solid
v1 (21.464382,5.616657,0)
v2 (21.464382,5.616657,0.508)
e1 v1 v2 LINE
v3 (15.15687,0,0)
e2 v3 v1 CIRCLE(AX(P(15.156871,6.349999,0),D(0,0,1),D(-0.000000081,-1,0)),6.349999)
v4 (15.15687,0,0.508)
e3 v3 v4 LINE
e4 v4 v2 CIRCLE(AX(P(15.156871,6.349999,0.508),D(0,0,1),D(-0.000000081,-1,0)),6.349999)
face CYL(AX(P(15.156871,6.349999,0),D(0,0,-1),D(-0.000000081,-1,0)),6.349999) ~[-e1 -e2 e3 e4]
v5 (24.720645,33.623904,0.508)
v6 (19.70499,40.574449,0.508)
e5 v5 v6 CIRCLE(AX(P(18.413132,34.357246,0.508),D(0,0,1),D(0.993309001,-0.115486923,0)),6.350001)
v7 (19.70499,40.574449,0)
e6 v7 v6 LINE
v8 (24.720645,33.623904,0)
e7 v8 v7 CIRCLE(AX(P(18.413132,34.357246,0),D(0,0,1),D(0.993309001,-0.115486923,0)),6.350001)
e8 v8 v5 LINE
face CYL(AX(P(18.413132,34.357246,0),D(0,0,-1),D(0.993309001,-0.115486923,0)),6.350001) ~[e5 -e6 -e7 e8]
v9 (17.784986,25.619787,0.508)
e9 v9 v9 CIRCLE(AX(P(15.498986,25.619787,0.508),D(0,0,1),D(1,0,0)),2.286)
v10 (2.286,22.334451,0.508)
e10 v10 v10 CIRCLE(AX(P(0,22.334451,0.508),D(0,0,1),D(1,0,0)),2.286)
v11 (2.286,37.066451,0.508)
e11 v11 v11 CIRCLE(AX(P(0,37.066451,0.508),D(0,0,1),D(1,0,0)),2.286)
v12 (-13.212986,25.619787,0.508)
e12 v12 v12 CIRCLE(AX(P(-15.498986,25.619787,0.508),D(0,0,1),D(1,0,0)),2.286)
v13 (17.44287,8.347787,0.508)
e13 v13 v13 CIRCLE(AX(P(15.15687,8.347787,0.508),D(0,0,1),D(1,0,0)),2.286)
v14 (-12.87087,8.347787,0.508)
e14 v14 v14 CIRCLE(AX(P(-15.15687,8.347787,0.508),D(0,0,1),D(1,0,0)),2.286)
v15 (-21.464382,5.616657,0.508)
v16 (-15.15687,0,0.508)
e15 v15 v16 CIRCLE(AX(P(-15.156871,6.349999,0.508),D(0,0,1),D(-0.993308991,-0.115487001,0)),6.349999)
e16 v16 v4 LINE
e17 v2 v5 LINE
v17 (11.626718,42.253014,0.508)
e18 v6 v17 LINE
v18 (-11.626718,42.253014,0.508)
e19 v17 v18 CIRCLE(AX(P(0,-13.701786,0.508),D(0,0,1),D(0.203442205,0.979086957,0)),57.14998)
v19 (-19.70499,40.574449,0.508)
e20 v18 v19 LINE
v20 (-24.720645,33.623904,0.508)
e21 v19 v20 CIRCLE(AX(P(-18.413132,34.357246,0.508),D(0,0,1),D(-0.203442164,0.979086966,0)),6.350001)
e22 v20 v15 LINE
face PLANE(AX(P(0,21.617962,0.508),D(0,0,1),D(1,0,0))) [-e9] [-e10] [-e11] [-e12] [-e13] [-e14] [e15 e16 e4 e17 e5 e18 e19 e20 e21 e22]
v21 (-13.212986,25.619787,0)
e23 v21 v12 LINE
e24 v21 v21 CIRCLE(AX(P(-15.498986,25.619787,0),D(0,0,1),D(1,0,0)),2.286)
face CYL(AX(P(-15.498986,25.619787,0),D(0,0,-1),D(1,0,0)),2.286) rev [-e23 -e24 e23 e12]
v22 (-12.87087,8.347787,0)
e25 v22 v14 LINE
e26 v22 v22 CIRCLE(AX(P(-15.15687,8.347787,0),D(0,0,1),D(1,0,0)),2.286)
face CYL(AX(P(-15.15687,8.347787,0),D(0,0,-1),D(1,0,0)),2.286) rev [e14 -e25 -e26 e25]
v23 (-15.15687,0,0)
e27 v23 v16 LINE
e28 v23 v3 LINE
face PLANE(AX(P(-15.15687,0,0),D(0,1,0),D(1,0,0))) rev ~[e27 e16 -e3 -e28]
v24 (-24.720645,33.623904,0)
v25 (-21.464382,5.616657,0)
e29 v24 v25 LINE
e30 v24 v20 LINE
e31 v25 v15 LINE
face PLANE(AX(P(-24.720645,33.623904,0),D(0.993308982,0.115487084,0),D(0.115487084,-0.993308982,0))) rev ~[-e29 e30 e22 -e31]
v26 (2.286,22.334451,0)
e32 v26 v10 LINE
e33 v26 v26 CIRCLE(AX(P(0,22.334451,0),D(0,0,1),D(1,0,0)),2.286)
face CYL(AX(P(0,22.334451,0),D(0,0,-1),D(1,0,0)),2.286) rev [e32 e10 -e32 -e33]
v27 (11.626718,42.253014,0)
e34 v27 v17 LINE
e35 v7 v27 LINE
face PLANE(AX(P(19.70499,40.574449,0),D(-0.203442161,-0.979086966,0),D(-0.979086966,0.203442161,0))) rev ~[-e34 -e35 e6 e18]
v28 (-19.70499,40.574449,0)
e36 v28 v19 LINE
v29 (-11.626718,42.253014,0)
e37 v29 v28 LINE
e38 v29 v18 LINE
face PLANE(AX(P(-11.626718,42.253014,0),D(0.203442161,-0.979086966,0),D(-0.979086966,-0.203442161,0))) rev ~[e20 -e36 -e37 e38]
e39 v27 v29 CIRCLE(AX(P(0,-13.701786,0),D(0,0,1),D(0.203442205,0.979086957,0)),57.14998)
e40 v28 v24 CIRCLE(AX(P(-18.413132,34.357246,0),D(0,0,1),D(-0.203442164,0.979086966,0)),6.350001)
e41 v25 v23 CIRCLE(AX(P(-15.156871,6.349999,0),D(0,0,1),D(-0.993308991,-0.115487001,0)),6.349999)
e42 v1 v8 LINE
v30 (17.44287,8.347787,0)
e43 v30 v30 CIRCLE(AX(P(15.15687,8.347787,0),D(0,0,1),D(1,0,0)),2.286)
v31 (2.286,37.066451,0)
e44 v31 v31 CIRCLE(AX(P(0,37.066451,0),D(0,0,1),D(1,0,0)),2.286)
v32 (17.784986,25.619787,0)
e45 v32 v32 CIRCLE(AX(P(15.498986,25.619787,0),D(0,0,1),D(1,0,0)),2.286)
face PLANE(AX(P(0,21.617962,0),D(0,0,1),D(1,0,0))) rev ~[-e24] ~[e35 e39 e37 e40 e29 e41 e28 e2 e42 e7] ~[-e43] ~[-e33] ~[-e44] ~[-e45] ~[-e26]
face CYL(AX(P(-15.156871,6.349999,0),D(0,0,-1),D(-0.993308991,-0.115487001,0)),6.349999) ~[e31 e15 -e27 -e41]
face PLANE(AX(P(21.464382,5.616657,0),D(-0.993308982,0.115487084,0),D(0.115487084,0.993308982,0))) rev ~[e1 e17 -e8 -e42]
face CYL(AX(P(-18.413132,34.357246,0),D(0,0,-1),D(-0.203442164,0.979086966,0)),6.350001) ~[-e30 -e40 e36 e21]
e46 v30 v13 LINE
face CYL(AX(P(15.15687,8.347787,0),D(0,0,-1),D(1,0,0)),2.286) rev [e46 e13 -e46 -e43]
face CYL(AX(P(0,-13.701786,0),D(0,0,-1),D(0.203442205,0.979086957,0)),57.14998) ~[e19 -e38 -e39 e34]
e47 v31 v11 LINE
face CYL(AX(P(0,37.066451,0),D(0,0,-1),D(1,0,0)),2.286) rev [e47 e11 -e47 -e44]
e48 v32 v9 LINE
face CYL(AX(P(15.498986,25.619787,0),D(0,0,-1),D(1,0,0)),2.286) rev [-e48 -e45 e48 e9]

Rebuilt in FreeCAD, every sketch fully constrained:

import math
import FreeCAD as App
import Part
import Sketcher
Q = App.Units.Quantity

doc = App.newDocument("Part")
body = doc.addObject("PartDesign::Body", "Body")

# Sketch on XY plane
sketch1 = doc.addObject("Sketcher::SketchObject", "Sketch")
body.addObject(sketch1)
sketch1.AttachmentSupport = (doc.XY_Plane, [""])
sketch1.MapMode = "FlatFace"
sketch1.addGeometry([
    Part.LineSegment(App.Vector(-15.2, 0, 0), App.Vector(15.2, 0, 0)),  # 0
    Part.ArcOfCircle(Part.Circle(App.Vector(15.2, 6.3, 0), App.Vector(0, 0, 1), 6.3), math.radians(-90), math.radians(-7)),  # 1
    Part.LineSegment(App.Vector(21.5, 5.6, 0), App.Vector(24.7, 33.6, 0)),  # 2
    Part.ArcOfCircle(Part.Circle(App.Vector(18.4, 34.4, 0), App.Vector(0, 0, 1), 6.4), math.radians(-7), math.radians(78)),  # 3
    Part.LineSegment(App.Vector(19.7, 40.6, 0), App.Vector(11.6, 42.3, 0)),  # 4
    Part.ArcOfCircle(Part.Circle(App.Vector(0, -13.7, 0), App.Vector(0, 0, 1), 57.1), math.radians(78), math.radians(102)),  # 5
    Part.LineSegment(App.Vector(-11.6, 42.3, 0), App.Vector(-19.7, 40.6, 0)),  # 6
    Part.ArcOfCircle(Part.Circle(App.Vector(-18.4, 34.4, 0), App.Vector(0, 0, 1), 6.4), math.radians(102), math.radians(187)),  # 7
    Part.LineSegment(App.Vector(-24.7, 33.6, 0), App.Vector(-21.5, 5.6, 0)),  # 8
    Part.ArcOfCircle(Part.Circle(App.Vector(-15.2, 6.3, 0), App.Vector(0, 0, 1), 6.3), math.radians(-173), math.radians(-90)),  # 9
    Part.Circle(App.Vector(-15.2, 8.3, 0), App.Vector(0, 0, 1), 2.3),  # 10
    Part.Circle(App.Vector(15.2, 8.3, 0), App.Vector(0, 0, 1), 2.3),  # 11
    Part.Circle(App.Vector(0, 22.3, 0), App.Vector(0, 0, 1), 2.3),  # 12
    Part.Circle(App.Vector(-15.5, 25.6, 0), App.Vector(0, 0, 1), 2.3),  # 13
    Part.Circle(App.Vector(15.5, 25.6, 0), App.Vector(0, 0, 1), 2.3),  # 14
    Part.Circle(App.Vector(0, 37.1, 0), App.Vector(0, 0, 1), 2.3),  # 15
], False)
sketch1.addConstraint([
    Sketcher.Constraint("Tangent", 0, 2, 1, 1),
    Sketcher.Constraint("Tangent", 1, 2, 2, 1),
    Sketcher.Constraint("Tangent", 2, 2, 3, 1),
    Sketcher.Constraint("Tangent", 3, 2, 4, 1),
    Sketcher.Constraint("Tangent", 4, 2, 5, 1),
    Sketcher.Constraint("Tangent", 5, 2, 6, 1),
    Sketcher.Constraint("Tangent", 6, 2, 7, 1),
    Sketcher.Constraint("Tangent", 7, 2, 8, 1),
    Sketcher.Constraint("Tangent", 8, 2, 9, 1),
    Sketcher.Constraint("Tangent", 9, 2, 0, 1),
    Sketcher.Constraint("Horizontal", 0),
    Sketcher.Constraint("Equal", 1, 3),
    Sketcher.Constraint("Equal", 3, 7),
    Sketcher.Constraint("Equal", 7, 9),
    Sketcher.Constraint("Equal", 10, 11),
    Sketcher.Constraint("Equal", 11, 12),
    Sketcher.Constraint("Equal", 12, 13),
    Sketcher.Constraint("Equal", 13, 14),
    Sketcher.Constraint("Equal", 14, 15),
    Sketcher.Constraint("Symmetric", 0, 2, 9, 2, -1, 1),
    Sketcher.Constraint("Symmetric", 3, 3, 7, 3, -2),
    Sketcher.Constraint("Symmetric", 10, 3, 11, 3, -2),
    Sketcher.Constraint("Symmetric", 13, 3, 14, 3, -2),
    Sketcher.Constraint("PointOnObject", 5, 3, -2),
    Sketcher.Constraint("PointOnObject", 12, 3, -2),
    Sketcher.Constraint("PointOnObject", 15, 3, -2),
    Sketcher.Constraint("Vertical", 9, 3, 10, 3),
    Sketcher.Constraint("Diameter", 10, Q("0.18 in")),
    Sketcher.Constraint("Radius", 1, Q("0.25 in")),
    Sketcher.Constraint("DistanceY", 10, 3, 13, 3, Q("0.68 in")),
    Sketcher.Constraint("DistanceY", 12, 3, 15, 3, Q("0.58 in")),
    Sketcher.Constraint("Radius", 5, 57.14998),
    Sketcher.Constraint("DistanceX", 0, 1, 0, 2, 30.31374),
    Sketcher.Constraint("DistanceY", 15, 3, 6, 2, 3.507998),
    Sketcher.Constraint("Distance", 4, 8.250822),
    Sketcher.Constraint("DistanceY", -1, 1, 12, 3, 22.334451),
    Sketcher.Constraint("DistanceX", -1, 1, 1, 2, 21.464382),
    Sketcher.Constraint("DistanceY", 10, 3, 7, 3, 26.009459),
    Sketcher.Constraint("DistanceX", 13, 3, 3, 3, 33.912118),
])
pad1 = doc.addObject("PartDesign::Pad", "Pad")
body.addObject(pad1)
pad1.Profile = sketch1
pad1.Length = Q("0.02 in")

doc.recompute()
